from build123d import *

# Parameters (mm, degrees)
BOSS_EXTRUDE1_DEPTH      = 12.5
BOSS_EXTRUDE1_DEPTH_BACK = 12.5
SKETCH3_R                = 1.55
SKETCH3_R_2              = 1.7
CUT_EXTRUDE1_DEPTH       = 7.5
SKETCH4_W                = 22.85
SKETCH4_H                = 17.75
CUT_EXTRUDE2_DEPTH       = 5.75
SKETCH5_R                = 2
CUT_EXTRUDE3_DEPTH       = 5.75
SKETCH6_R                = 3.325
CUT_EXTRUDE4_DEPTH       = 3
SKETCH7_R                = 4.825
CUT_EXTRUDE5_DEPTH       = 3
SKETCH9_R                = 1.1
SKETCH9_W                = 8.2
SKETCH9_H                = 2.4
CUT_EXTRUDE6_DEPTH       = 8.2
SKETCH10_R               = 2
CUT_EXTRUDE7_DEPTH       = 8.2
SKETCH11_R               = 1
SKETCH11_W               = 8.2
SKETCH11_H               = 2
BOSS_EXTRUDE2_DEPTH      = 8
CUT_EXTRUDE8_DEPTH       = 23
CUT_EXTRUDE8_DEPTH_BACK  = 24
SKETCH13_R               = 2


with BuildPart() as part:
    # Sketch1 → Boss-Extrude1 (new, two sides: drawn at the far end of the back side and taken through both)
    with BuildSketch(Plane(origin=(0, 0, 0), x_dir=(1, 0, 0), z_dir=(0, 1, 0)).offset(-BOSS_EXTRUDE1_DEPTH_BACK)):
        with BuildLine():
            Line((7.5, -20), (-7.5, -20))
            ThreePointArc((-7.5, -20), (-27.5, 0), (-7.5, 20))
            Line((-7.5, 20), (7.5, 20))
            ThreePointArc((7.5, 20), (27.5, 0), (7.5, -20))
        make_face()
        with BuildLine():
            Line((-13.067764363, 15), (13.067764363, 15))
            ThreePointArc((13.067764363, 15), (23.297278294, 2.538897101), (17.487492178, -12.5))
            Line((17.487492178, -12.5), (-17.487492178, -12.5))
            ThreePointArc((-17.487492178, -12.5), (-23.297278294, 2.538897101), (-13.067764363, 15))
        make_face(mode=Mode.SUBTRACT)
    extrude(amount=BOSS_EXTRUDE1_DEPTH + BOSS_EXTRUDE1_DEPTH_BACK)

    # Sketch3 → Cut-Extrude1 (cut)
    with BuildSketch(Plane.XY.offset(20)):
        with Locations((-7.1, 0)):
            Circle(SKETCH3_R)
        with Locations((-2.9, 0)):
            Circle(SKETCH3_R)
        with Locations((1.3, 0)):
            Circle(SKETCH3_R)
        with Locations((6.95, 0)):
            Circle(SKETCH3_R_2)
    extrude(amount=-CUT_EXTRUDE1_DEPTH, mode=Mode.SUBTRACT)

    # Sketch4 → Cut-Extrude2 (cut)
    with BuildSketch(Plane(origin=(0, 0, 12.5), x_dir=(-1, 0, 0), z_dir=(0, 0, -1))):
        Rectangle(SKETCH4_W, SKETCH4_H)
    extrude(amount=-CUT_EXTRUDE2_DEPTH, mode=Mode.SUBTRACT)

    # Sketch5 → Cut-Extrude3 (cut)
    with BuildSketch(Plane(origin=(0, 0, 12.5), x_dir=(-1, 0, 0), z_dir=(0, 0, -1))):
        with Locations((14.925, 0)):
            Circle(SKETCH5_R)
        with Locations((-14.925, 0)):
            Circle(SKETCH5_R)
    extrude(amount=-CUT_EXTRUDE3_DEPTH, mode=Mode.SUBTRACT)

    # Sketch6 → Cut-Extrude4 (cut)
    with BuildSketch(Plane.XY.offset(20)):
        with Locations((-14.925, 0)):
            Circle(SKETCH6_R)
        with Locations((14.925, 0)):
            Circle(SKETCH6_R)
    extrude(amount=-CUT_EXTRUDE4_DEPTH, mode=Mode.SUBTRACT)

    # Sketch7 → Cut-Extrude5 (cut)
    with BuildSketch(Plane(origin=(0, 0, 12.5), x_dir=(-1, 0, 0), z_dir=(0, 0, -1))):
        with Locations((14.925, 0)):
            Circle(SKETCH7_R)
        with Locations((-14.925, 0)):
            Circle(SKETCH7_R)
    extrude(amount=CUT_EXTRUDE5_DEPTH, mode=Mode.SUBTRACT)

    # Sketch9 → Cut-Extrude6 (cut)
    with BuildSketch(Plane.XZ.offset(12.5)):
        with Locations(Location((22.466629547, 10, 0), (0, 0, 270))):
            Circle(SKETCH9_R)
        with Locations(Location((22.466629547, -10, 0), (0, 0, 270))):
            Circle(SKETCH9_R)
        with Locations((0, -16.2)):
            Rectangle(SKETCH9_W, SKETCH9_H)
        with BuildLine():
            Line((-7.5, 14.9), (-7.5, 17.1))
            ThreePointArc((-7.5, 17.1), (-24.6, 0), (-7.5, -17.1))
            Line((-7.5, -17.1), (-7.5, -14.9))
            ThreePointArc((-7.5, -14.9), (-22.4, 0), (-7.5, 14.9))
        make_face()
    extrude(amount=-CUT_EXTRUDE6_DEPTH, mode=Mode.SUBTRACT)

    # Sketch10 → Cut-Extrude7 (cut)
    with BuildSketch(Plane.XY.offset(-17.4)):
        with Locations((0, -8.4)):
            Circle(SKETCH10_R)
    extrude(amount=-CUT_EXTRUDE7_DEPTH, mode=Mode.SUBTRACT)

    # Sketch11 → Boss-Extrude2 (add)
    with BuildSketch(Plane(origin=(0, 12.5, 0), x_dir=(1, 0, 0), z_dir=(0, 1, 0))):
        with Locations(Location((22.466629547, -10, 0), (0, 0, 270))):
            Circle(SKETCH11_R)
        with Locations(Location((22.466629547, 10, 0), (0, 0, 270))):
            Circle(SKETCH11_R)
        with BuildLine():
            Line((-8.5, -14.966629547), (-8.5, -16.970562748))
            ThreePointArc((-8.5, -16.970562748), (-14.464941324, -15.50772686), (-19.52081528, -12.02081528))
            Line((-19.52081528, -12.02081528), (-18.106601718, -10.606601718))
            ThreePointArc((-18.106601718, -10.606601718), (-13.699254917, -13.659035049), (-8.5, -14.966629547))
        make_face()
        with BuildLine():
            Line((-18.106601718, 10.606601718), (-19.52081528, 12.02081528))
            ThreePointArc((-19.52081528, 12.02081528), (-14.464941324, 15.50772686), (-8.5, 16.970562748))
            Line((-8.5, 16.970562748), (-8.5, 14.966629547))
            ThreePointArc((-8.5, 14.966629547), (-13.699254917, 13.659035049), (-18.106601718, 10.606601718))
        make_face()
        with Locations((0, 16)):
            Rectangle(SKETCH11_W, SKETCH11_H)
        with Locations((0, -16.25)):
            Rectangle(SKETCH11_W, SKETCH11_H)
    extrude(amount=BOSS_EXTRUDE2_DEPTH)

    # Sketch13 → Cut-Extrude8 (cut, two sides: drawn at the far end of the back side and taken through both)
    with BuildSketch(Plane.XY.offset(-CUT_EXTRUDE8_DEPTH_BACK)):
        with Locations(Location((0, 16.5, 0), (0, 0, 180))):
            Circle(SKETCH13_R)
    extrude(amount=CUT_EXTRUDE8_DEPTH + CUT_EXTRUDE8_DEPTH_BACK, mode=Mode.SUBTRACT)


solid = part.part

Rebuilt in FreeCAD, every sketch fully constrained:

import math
import FreeCAD as App
import Part
import Sketcher

V = App.Vector
Q = App.Units.Quantity


def add_polygon(sketch, points):
    """Adds a closed chain of lines whose ends are joined by coincident constraints."""
    first, n = sketch.GeometryCount, len(points)
    for a, b in zip(points, points[1:] + points[:1]):
        sketch.addGeometry(Part.LineSegment(App.Vector(*a, 0), App.Vector(*b, 0)), False)
    for i in range(n):
        sketch.addConstraint(Sketcher.Constraint("Coincident", first + i, 2, first + (i + 1) % n, 1))

doc = App.newDocument("Part")
params = doc.addObject("Spreadsheet::Sheet", "Params")
for row, (alias, value) in enumerate([
    ("sketch1_radius", "20 mm"),
    ("sketch1_radius2", "16 mm"),
    ("sketch1_width", "15 mm"),
    ("pad1_length", "12.5 mm"),
    ("pad1_length2", "12.5 mm"),
    ("sketch2_diameter", "3.1 mm"),
    ("sketch2_diameter2", "3.4 mm"),
    ("pocket1_length", "7.5 mm"),
    ("sketch3_width", "22.85 mm"),
    ("sketch3_height", "17.75 mm"),
    ("pocket2_length", "5.75 mm"),
    ("sketch4_diameter", "4 mm"),
    ("pocket3_length", "5.75 mm"),
    ("sketch5_diameter", "6.65 mm"),
    ("pocket4_length", "3 mm"),
    ("sketch6_diameter", "9.65 mm"),
    ("pocket5_length", "3 mm"),
    ("sketch7_diameter", "2.2 mm"),
    ("sketch7_radius", "17.1 mm"),
    ("sketch7_radius2", "14.9 mm"),
    ("sketch7_width", "8.2 mm"),
    ("sketch7_height", "2.4 mm"),
    ("pocket6_length", "8.2 mm"),
    ("sketch8_diameter", "4 mm"),
    ("pocket7_length", "8.2 mm"),
    ("sketch9_diameter", "2 mm"),
    ("sketch9_radius", "15 mm"),
    ("sketch9_radius2", "17 mm"),
    ("sketch9_height", "2 mm"),
    ("sketch9_width", "8.2 mm"),
    ("pad2_length", "8 mm"),
    ("sketch10_diameter", "4 mm"),
], start=1):
    params.set(f"A{row}", alias)
    params.set(f"B{row}", "=" + value)
    params.setAlias(f"B{row}", alias)

body = doc.addObject("PartDesign::Body", "Body")

sketch1 = body.newObject("Sketcher::SketchObject", "Sketch")
sketch1.AttachmentSupport = (doc.getObject("XZ_Plane"), [""])
sketch1.MapMode = "FlatFace"
sketch1.addGeometry(Part.LineSegment(V(-7.5, 20, 0), V(7.5, 20, 0)), False)
sketch1.addGeometry(Part.ArcOfCircle(Part.Circle(V(7.5, 0, 0), V(0, 0, 1), 20), math.radians(-90), math.radians(90)), False)
sketch1.addGeometry(Part.LineSegment(V(7.5, -20, 0), V(-7.5, -20, 0)), False)
sketch1.addGeometry(Part.ArcOfCircle(Part.Circle(V(-7.5, 0, 0), V(0, 0, 1), 20), math.radians(90), math.radians(270)), False)
sketch1.addGeometry(Part.LineSegment(V(-13.067764, -15, 0), V(13.067764, -15, 0)), False)
sketch1.addGeometry(Part.ArcOfCircle(Part.Circle(V(7.5, 0, 0), V(0, 0, 1), 16), math.radians(-69.635865), math.radians(51.375167)), False)
sketch1.addGeometry(Part.LineSegment(V(17.487492, 12.5, 0), V(-17.487492, 12.5, 0)), False)
sketch1.addGeometry(Part.ArcOfCircle(Part.Circle(V(-7.5, 0, 0), V(0, 0, 1), 16), math.radians(128.624833), math.radians(249.635865)), False)
sketch1.addConstraint(Sketcher.Constraint("Tangent", 0, 2, 1, 2))
sketch1.addConstraint(Sketcher.Constraint("Tangent", 1, 1, 2, 1))
sketch1.addConstraint(Sketcher.Constraint("Tangent", 2, 2, 3, 2))
sketch1.addConstraint(Sketcher.Constraint("Tangent", 3, 1, 0, 1))
sketch1.addConstraint(Sketcher.Constraint("Coincident", 4, 2, 5, 1))
sketch1.addConstraint(Sketcher.Constraint("Coincident", 5, 2, 6, 1))
sketch1.addConstraint(Sketcher.Constraint("Coincident", 6, 2, 7, 1))
sketch1.addConstraint(Sketcher.Constraint("Coincident", 7, 2, 4, 1))
sketch1.addConstraint(Sketcher.Constraint("Horizontal", 0))
sketch1.addConstraint(Sketcher.Constraint("Horizontal", 2))
sketch1.addConstraint(Sketcher.Constraint("Horizontal", 4))
sketch1.addConstraint(Sketcher.Constraint("Horizontal", 6))
sketch1.addConstraint(Sketcher.Constraint("Coincident", 5, 3, 1, 3))
sketch1.addConstraint(Sketcher.Constraint("Coincident", 7, 3, 3, 3))
sketch1.addConstraint(Sketcher.Constraint("Equal", 5, 7))
sketch1.addConstraint(Sketcher.Constraint("Symmetric", 1, 3, 3, 3, -1, 1))
sketch1.addConstraint(Sketcher.Constraint("Radius", 1, Q("20 mm")))
sketch1.addConstraint(Sketcher.Constraint("Radius", 5, Q("16 mm")))
sketch1.addConstraint(Sketcher.Constraint("DistanceX", 0, 1, 0, 2, Q("15 mm")))
sketch1.addConstraint(Sketcher.Constraint("DistanceY", 4, 2, -1, 1, Q("15 mm")))
sketch1.addConstraint(Sketcher.Constraint("DistanceY", -1, 1, 5, 2, Q("12.5 mm")))
sketch1.setExpression("Constraints[16]", "Params.sketch1_radius")
sketch1.setExpression("Constraints[17]", "Params.sketch1_radius2")
sketch1.setExpression("Constraints[18]", "Params.sketch1_width")
pad1 = body.newObject("PartDesign::Pad", "Pad")
pad1.Profile = sketch1
pad1.Type = "TwoLengths"
pad1.setExpression("Length", "Params.pad1_length")
pad1.setExpression("Length2", "Params.pad1_length2")
pad1.Reversed = True

sketch2 = body.newObject("Sketcher::SketchObject", "Sketch001")
sketch2.AttachmentSupport = (doc.getObject("XY_Plane"), [""])
sketch2.MapMode = "FlatFace"
sketch2.AttachmentOffset = App.Placement(V(0, 0, 20), App.Rotation())
sketch2.addGeometry(Part.Circle(V(-7.1, 0, 0), V(0, 0, 1), 1.55), False)
sketch2.addGeometry(Part.Circle(V(-2.9, 0, 0), V(0, 0, 1), 1.55), False)
sketch2.addGeometry(Part.Circle(V(1.3, 0, 0), V(0, 0, 1), 1.55), False)
sketch2.addGeometry(Part.Circle(V(6.95, 0, 0), V(0, 0, 1), 1.7), False)
sketch2.addConstraint(Sketcher.Constraint("Equal", 0, 1))
sketch2.addConstraint(Sketcher.Constraint("Equal", 1, 2))
sketch2.addConstraint(Sketcher.Constraint("PointOnObject", 0, 3, -1))
sketch2.addConstraint(Sketcher.Constraint("PointOnObject", 1, 3, -1))
sketch2.addConstraint(Sketcher.Constraint("PointOnObject", 2, 3, -1))
sketch2.addConstraint(Sketcher.Constraint("PointOnObject", 3, 3, -1))
sketch2.addConstraint(Sketcher.Constraint("Diameter", 0, Q("3.1 mm")))
sketch2.addConstraint(Sketcher.Constraint("Diameter", 3, Q("3.4 mm")))
sketch2.addConstraint(Sketcher.Constraint("DistanceX", 0, 3, -1, 1, Q("7.1 mm")))
sketch2.addConstraint(Sketcher.Constraint("DistanceX", 1, 3, -1, 1, Q("2.9 mm")))
sketch2.addConstraint(Sketcher.Constraint("DistanceX", -1, 1, 2, 3, Q("1.3 mm")))
sketch2.addConstraint(Sketcher.Constraint("DistanceX", -1, 1, 3, 3, Q("6.95 mm")))
sketch2.setExpression("Constraints[6]", "Params.sketch2_diameter")
sketch2.setExpression("Constraints[7]", "Params.sketch2_diameter2")
pocket1 = body.newObject("PartDesign::Pocket", "Pocket")
pocket1.Profile = sketch2
pocket1.setExpression("Length", "Params.pocket1_length")

sketch3 = body.newObject("Sketcher::SketchObject", "Sketch002")
sketch3.AttachmentSupport = (doc.getObject("XY_Plane"), [""])
sketch3.MapMode = "FlatFace"
sketch3.AttachmentOffset = App.Placement(V(0, 0, 12.5), App.Rotation())
add_polygon(sketch3, [(11.425, 8.875), (11.425, -8.875), (-11.425, -8.875), (-11.425, 8.875)])
sketch3.addConstraint(Sketcher.Constraint("Vertical", 0))
sketch3.addConstraint(Sketcher.Constraint("Horizontal", 1))
sketch3.addConstraint(Sketcher.Constraint("Vertical", 2))
sketch3.addConstraint(Sketcher.Constraint("Horizontal", 3))
sketch3.addConstraint(Sketcher.Constraint("Symmetric", 0, 2, 2, 2, -1, 1))
sketch3.addConstraint(Sketcher.Constraint("DistanceX", 1, 2, 1, 1, Q("22.85 mm")))
sketch3.addConstraint(Sketcher.Constraint("DistanceY", 0, 2, 0, 1, Q("17.75 mm")))
sketch3.setExpression("Constraints[9]", "Params.sketch3_width")
sketch3.setExpression("Constraints[10]", "Params.sketch3_height")
pocket2 = body.newObject("PartDesign::Pocket", "Pocket001")
pocket2.Profile = sketch3
pocket2.setExpression("Length", "Params.pocket2_length")
pocket2.Reversed = True

sketch4 = body.newObject("Sketcher::SketchObject", "Sketch003")
sketch4.AttachmentSupport = (doc.getObject("XY_Plane"), [""])
sketch4.MapMode = "FlatFace"
sketch4.AttachmentOffset = App.Placement(V(0, 0, 12.5), App.Rotation())
sketch4.addGeometry(Part.Circle(V(-14.925, 0, 0), V(0, 0, 1), 2), False)
sketch4.addGeometry(Part.Circle(V(14.925, 0, 0), V(0, 0, 1), 2), False)
sketch4.addConstraint(Sketcher.Constraint("Equal", 0, 1))
sketch4.addConstraint(Sketcher.Constraint("Symmetric", 0, 3, 1, 3, -1, 1))
sketch4.addConstraint(Sketcher.Constraint("PointOnObject", 0, 3, -1))
sketch4.addConstraint(Sketcher.Constraint("Diameter", 0, Q("4 mm")))
sketch4.addConstraint(Sketcher.Constraint("DistanceX", 0, 3, 1, 3, Q("29.85 mm")))
sketch4.setExpression("Constraints[3]", "Params.sketch4_diameter")
pocket3 = body.newObject("PartDesign::Pocket", "Pocket002")
pocket3.Profile = sketch4
pocket3.setExpression("Length", "Params.pocket3_length")
pocket3.Reversed = True

sketch5 = body.newObject("Sketcher::SketchObject", "Sketch004")
sketch5.AttachmentSupport = (doc.getObject("XY_Plane"), [""])
sketch5.MapMode = "FlatFace"
sketch5.AttachmentOffset = App.Placement(V(0, 0, 20), App.Rotation())
sketch5.addGeometry(Part.Circle(V(-14.925, 0, 0), V(0, 0, 1), 3.325), False)
sketch5.addGeometry(Part.Circle(V(14.925, 0, 0), V(0, 0, 1), 3.325), False)
sketch5.addConstraint(Sketcher.Constraint("Equal", 0, 1))
sketch5.addConstraint(Sketcher.Constraint("Symmetric", 0, 3, 1, 3, -1, 1))
sketch5.addConstraint(Sketcher.Constraint("PointOnObject", 0, 3, -1))
sketch5.addConstraint(Sketcher.Constraint("Diameter", 0, Q("6.65 mm")))
sketch5.addConstraint(Sketcher.Constraint("DistanceX", 0, 3, 1, 3, Q("29.85 mm")))
sketch5.setExpression("Constraints[3]", "Params.sketch5_diameter")
pocket4 = body.newObject("PartDesign::Pocket", "Pocket003")
pocket4.Profile = sketch5
pocket4.setExpression("Length", "Params.pocket4_length")

sketch6 = body.newObject("Sketcher::SketchObject", "Sketch005")
sketch6.AttachmentSupport = (doc.getObject("XY_Plane"), [""])
sketch6.MapMode = "FlatFace"
sketch6.AttachmentOffset = App.Placement(V(0, 0, 12.5), App.Rotation())
sketch6.addGeometry(Part.Circle(V(-14.925, 0, 0), V(0, 0, 1), 4.825), False)
sketch6.addGeometry(Part.Circle(V(14.925, 0, 0), V(0, 0, 1), 4.825), False)
sketch6.addConstraint(Sketcher.Constraint("Equal", 0, 1))
sketch6.addConstraint(Sketcher.Constraint("Symmetric", 0, 3, 1, 3, -1, 1))
sketch6.addConstraint(Sketcher.Constraint("PointOnObject", 0, 3, -1))
sketch6.addConstraint(Sketcher.Constraint("Diameter", 0, Q("9.65 mm")))
sketch6.addConstraint(Sketcher.Constraint("DistanceX", 0, 3, 1, 3, Q("29.85 mm")))
sketch6.setExpression("Constraints[3]", "Params.sketch6_diameter")
pocket5 = body.newObject("PartDesign::Pocket", "Pocket004")
pocket5.Profile = sketch6
pocket5.setExpression("Length", "Params.pocket5_length")

sketch7 = body.newObject("Sketcher::SketchObject", "Sketch006")
sketch7.AttachmentSupport = (doc.getObject("XZ_Plane"), [""])
sketch7.MapMode = "FlatFace"
sketch7.AttachmentOffset = App.Placement(V(0, 0, 12.5), App.Rotation())
sketch7.addGeometry(Part.Circle(V(22.46663, 10, 0), V(0, 0, 1), 1.1), False)
sketch7.addGeometry(Part.Circle(V(22.46663, -10, 0), V(0, 0, 1), 1.1), False)
add_polygon(sketch7, [(-4.1, -15), (-4.1, -17.4), (4.1, -17.4), (4.1, -15)])
sketch7.addGeometry(Part.LineSegment(V(-7.5, 14.9, 0), V(-7.5, 17.1, 0)), False)
sketch7.addGeometry(Part.ArcOfCircle(Part.Circle(V(-7.5, 0, 0), V(0, 0, 1), 17.1), math.radians(90), math.radians(270)), False)
sketch7.addGeometry(Part.LineSegment(V(-7.5, -17.1, 0), V(-7.5, -14.9, 0)), False)
sketch7.addGeometry(Part.ArcOfCircle(Part.Circle(V(-7.5, 0, 0), V(0, 0, 1), 14.9), math.radians(90), math.radians(270)), False)
sketch7.addConstraint(Sketcher.Constraint("Coincident", 6, 2, 7, 1))
sketch7.addConstraint(Sketcher.Constraint("Coincident", 7, 2, 8, 1))
sketch7.addConstraint(Sketcher.Constraint("Coincident", 8, 2, 9, 2))
sketch7.addConstraint(Sketcher.Constraint("Coincident", 9, 1, 6, 1))
sketch7.addConstraint(Sketcher.Constraint("Vertical", 2))
sketch7.addConstraint(Sketcher.Constraint("Horizontal", 3))
sketch7.addConstraint(Sketcher.Constraint("Vertical", 4))
sketch7.addConstraint(Sketcher.Constraint("Horizontal", 5))
sketch7.addConstraint(Sketcher.Constraint("Vertical", 6))
sketch7.addConstraint(Sketcher.Constraint("Vertical", 8))
sketch7.addConstraint(Sketcher.Constraint("Coincident", 9, 3, 7, 3))
sketch7.addConstraint(Sketcher.Constraint("Equal", 0, 1))
sketch7.addConstraint(Sketcher.Constraint("Symmetric", 0, 3, 1, 3, -1))
sketch7.addConstraint(Sketcher.Constraint("Symmetric", 6, 2, 7, 2, -1))
sketch7.addConstraint(Sketcher.Constraint("Vertical", 9, 3, 6, 2))
sketch7.addConstraint(Sketcher.Constraint("Diameter", 0, Q("2.2 mm")))
sketch7.addConstraint(Sketcher.Constraint("Radius", 7, Q("17.1 mm")))
sketch7.addConstraint(Sketcher.Constraint("Radius", 9, Q("14.9 mm")))
sketch7.addConstraint(Sketcher.Constraint("DistanceX", 3, 1, 3, 2, Q("8.2 mm")))
sketch7.addConstraint(Sketcher.Constraint("DistanceY", 2, 2, 2, 1, Q("2.4 mm")))
sketch7.addConstraint(Sketcher.Constraint("DistanceY", -1, 1, 0, 3, Q("10 mm")))
sketch7.addConstraint(Sketcher.Constraint("DistanceY", 4, 2, -1, 1, Q("15 mm")))
sketch7.addConstraint(Sketcher.Constraint("DistanceX", 7, 3, -1, 1, Q("7.5 mm")))
sketch7.addConstraint(Sketcher.Constraint("DistanceX", 2, 2, -1, 1, Q("4.1 mm")))
sketch7.addConstraint(Sketcher.Constraint("DistanceX", -1, 1, 0, 3, Q("22.46663 mm")))
sketch7.setExpression("Constraints[19]", "Params.sketch7_diameter")
sketch7.setExpression("Constraints[20]", "Params.sketch7_radius")
sketch7.setExpression("Constraints[21]", "Params.sketch7_radius2")
sketch7.setExpression("Constraints[22]", "Params.sketch7_width")
sketch7.setExpression("Constraints[23]", "Params.sketch7_height")
pocket6 = body.newObject("PartDesign::Pocket", "Pocket005")
pocket6.Profile = sketch7
pocket6.setExpression("Length", "Params.pocket6_length")

sketch8 = body.newObject("Sketcher::SketchObject", "Sketch007")
sketch8.AttachmentSupport = (doc.getObject("XY_Plane"), [""])
sketch8.MapMode = "FlatFace"
sketch8.AttachmentOffset = App.Placement(V(0, 0, -17.4), App.Rotation())
sketch8.addGeometry(Part.Circle(V(0, -8.4, 0), V(0, 0, 1), 2), False)
sketch8.addConstraint(Sketcher.Constraint("PointOnObject", 0, 3, -2))
sketch8.addConstraint(Sketcher.Constraint("Diameter", 0, Q("4 mm")))
sketch8.addConstraint(Sketcher.Constraint("DistanceY", 0, 3, -1, 1, Q("8.4 mm")))
sketch8.setExpression("Constraints[1]", "Params.sketch8_diameter")
pocket7 = body.newObject("PartDesign::Pocket", "Pocket006")
pocket7.Profile = sketch8
pocket7.setExpression("Length", "Params.pocket7_length")

sketch9 = body.newObject("Sketcher::SketchObject", "Sketch008")
sketch9.AttachmentSupport = (doc.getObject("XZ_Plane"), [""])
sketch9.MapMode = "FlatFace"
sketch9.AttachmentOffset = App.Placement(V(0, 0, -12.5), App.Rotation())
sketch9.addGeometry(Part.Circle(V(22.46663, 10, 0), V(0, 0, 1), 1), False)
sketch9.addGeometry(Part.Circle(V(22.46663, -10, 0), V(0, 0, 1), 1), False)
sketch9.addGeometry(Part.LineSegment(V(-8.5, 16.970563, 0), V(-8.5, 14.96663, 0)), False)
sketch9.addGeometry(Part.ArcOfCircle(Part.Circle(V(-7.5, 0, 0), V(0, 0, 1), 15), math.radians(93.822554), math.radians(135)), False)
sketch9.addGeometry(Part.LineSegment(V(-18.106602, 10.606602, 0), V(-19.520815, 12.020815, 0)), False)
sketch9.addGeometry(Part.ArcOfCircle(Part.Circle(V(-7.5, 0, 0), V(0, 0, 1), 17), math.radians(93.372287), math.radians(135)), False)
sketch9.addGeometry(Part.LineSegment(V(-19.520815, -12.020815, 0), V(-18.106602, -10.606602, 0)), False)
sketch9.addGeometry(Part.ArcOfCircle(Part.Circle(V(-7.5, 0, 0), V(0, 0, 1), 15), math.radians(-135), math.radians(-93.822554)), False)
sketch9.addGeometry(Part.LineSegment(V(-8.5, -14.96663, 0), V(-8.5, -16.970563, 0)), False)
sketch9.addGeometry(Part.ArcOfCircle(Part.Circle(V(-7.5, 0, 0), V(0, 0, 1), 17), math.radians(-135), math.radians(-93.372287)), False)
add_polygon(sketch9, [(-4.1, -17), (-4.1, -15), (4.1, -15), (4.1, -17)])
add_polygon(sketch9, [(-4.1, 15.25), (-4.1, 17.25), (4.1, 17.25), (4.1, 15.25)])
sketch9.addConstraint(Sketcher.Constraint("Coincident", 2, 2, 3, 1))
sketch9.addConstraint(Sketcher.Constraint("Coincident", 3, 2, 4, 1))
sketch9.addConstraint(Sketcher.Constraint("Coincident", 4, 2, 5, 2))
sketch9.addConstraint(Sketcher.Constraint("Coincident", 5, 1, 2, 1))
sketch9.addConstraint(Sketcher.Constraint("Coincident", 6, 2, 7, 1))
sketch9.addConstraint(Sketcher.Constraint("Coincident", 7, 2, 8, 1))
sketch9.addConstraint(Sketcher.Constraint("Coincident", 8, 2, 9, 2))
sketch9.addConstraint(Sketcher.Constraint("Coincident", 9, 1, 6, 1))
sketch9.addConstraint(Sketcher.Constraint("Vertical", 2))
sketch9.addConstraint(Sketcher.Constraint("Vertical", 8))
sketch9.addConstraint(Sketcher.Constraint("Vertical", 10))
sketch9.addConstraint(Sketcher.Constraint("Horizontal", 11))
sketch9.addConstraint(Sketcher.Constraint("Vertical", 12))
sketch9.addConstraint(Sketcher.Constraint("Horizontal", 13))
sketch9.addConstraint(Sketcher.Constraint("Vertical", 14))
sketch9.addConstraint(Sketcher.Constraint("Horizontal", 15))
sketch9.addConstraint(Sketcher.Constraint("Vertical", 16))
sketch9.addConstraint(Sketcher.Constraint("Horizontal", 17))
sketch9.addConstraint(Sketcher.Constraint("Coincident", 5, 3, 3, 3))
sketch9.addConstraint(Sketcher.Constraint("Coincident", 7, 3, 3, 3))
sketch9.addConstraint(Sketcher.Constraint("Coincident", 9, 3, 3, 3))
sketch9.addConstraint(Sketcher.Constraint("Equal", 0, 1))
sketch9.addConstraint(Sketcher.Constraint("Equal", 3, 7))
sketch9.addConstraint(Sketcher.Constraint("Equal", 5, 9))
sketch9.addConstraint(Sketcher.Constraint("Symmetric", 0, 3, 1, 3, -1))
sketch9.addConstraint(Sketcher.Constraint("Symmetric", 3, 2, 6, 2, -1))
sketch9.addConstraint(Sketcher.Constraint("Perpendicular", 4, 6))
sketch9.addConstraint(Sketcher.Constraint("Vertical", 5, 1, 7, 2))
sketch9.addConstraint(Sketcher.Constraint("Vertical", 4, 2, 9, 1))
sketch9.addConstraint(Sketcher.Constraint("Vertical", 13, 2, 14, 2))
sketch9.addConstraint(Sketcher.Constraint("Vertical", 12, 2, 15, 2))
sketch9.addConstraint(Sketcher.Constraint("Equal", 12, 14))
sketch9.addConstraint(Sketcher.Constraint("Diameter", 0, Q("2 mm")))
sketch9.addConstraint(Sketcher.Constraint("Radius", 3, Q("15 mm")))
sketch9.addConstraint(Sketcher.Constraint("Radius", 5, Q("17 mm")))
sketch9.addConstraint(Sketcher.Constraint("DistanceY", 10, 1, 10, 2, Q("2 mm")))
sketch9.addConstraint(Sketcher.Constraint("DistanceX", 11, 1, 11, 2, Q("8.2 mm")))
sketch9.addConstraint(Sketcher.Constraint("DistanceY", -1, 1, 0, 3, Q("10 mm")))
sketch9.addConstraint(Sketcher.Constraint("DistanceY", 10, 2, -1, 1, Q("15 mm")))
sketch9.addConstraint(Sketcher.Constraint("DistanceX", 2, 2, 5, 3, Q("1 mm")))
sketch9.addConstraint(Sketcher.Constraint("DistanceX", 3, 3, -1, 1, Q("7.5 mm")))
sketch9.addConstraint(Sketcher.Constraint("DistanceX", 10, 2, -1, 1, Q("4.1 mm")))
sketch9.addConstraint(Sketcher.Constraint("DistanceY", -1, 1, 14, 2, Q("17.25 mm")))
sketch9.addConstraint(Sketcher.Constraint("DistanceX", 3, 2, -1, 1, Q("18.106602 mm")))
sketch9.addConstraint(Sketcher.Constraint("DistanceX", -1, 1, 0, 3, Q("22.46663 mm")))
sketch9.setExpression("Constraints[40]", "Params.sketch9_diameter")
sketch9.setExpression("Constraints[41]", "Params.sketch9_radius")
sketch9.setExpression("Constraints[42]", "Params.sketch9_radius2")
sketch9.setExpression("Constraints[43]", "Params.sketch9_height")
sketch9.setExpression("Constraints[44]", "Params.sketch9_width")
pad2 = body.newObject("PartDesign::Pad", "Pad001")
pad2.Profile = sketch9
pad2.setExpression("Length", "Params.pad2_length")
pad2.Reversed = True

sketch10 = body.newObject("Sketcher::SketchObject", "Sketch009")
sketch10.AttachmentSupport = (doc.getObject("XY_Plane"), [""])
sketch10.MapMode = "FlatFace"
sketch10.addGeometry(Part.Circle(V(0, 16.5, 0), V(0, 0, 1), 2), False)
sketch10.addConstraint(Sketcher.Constraint("PointOnObject", 0, 3, -2))
sketch10.addConstraint(Sketcher.Constraint("Diameter", 0, Q("4 mm")))
sketch10.addConstraint(Sketcher.Constraint("DistanceY", -1, 1, 0, 3, Q("16.5 mm")))
sketch10.setExpression("Constraints[1]", "Params.sketch10_diameter")
pocket8 = body.newObject("PartDesign::Pocket", "Pocket007")
pocket8.Profile = sketch10
pocket8.Type = "ThroughAll"
pocket8.Midplane = True

doc.recompute()
